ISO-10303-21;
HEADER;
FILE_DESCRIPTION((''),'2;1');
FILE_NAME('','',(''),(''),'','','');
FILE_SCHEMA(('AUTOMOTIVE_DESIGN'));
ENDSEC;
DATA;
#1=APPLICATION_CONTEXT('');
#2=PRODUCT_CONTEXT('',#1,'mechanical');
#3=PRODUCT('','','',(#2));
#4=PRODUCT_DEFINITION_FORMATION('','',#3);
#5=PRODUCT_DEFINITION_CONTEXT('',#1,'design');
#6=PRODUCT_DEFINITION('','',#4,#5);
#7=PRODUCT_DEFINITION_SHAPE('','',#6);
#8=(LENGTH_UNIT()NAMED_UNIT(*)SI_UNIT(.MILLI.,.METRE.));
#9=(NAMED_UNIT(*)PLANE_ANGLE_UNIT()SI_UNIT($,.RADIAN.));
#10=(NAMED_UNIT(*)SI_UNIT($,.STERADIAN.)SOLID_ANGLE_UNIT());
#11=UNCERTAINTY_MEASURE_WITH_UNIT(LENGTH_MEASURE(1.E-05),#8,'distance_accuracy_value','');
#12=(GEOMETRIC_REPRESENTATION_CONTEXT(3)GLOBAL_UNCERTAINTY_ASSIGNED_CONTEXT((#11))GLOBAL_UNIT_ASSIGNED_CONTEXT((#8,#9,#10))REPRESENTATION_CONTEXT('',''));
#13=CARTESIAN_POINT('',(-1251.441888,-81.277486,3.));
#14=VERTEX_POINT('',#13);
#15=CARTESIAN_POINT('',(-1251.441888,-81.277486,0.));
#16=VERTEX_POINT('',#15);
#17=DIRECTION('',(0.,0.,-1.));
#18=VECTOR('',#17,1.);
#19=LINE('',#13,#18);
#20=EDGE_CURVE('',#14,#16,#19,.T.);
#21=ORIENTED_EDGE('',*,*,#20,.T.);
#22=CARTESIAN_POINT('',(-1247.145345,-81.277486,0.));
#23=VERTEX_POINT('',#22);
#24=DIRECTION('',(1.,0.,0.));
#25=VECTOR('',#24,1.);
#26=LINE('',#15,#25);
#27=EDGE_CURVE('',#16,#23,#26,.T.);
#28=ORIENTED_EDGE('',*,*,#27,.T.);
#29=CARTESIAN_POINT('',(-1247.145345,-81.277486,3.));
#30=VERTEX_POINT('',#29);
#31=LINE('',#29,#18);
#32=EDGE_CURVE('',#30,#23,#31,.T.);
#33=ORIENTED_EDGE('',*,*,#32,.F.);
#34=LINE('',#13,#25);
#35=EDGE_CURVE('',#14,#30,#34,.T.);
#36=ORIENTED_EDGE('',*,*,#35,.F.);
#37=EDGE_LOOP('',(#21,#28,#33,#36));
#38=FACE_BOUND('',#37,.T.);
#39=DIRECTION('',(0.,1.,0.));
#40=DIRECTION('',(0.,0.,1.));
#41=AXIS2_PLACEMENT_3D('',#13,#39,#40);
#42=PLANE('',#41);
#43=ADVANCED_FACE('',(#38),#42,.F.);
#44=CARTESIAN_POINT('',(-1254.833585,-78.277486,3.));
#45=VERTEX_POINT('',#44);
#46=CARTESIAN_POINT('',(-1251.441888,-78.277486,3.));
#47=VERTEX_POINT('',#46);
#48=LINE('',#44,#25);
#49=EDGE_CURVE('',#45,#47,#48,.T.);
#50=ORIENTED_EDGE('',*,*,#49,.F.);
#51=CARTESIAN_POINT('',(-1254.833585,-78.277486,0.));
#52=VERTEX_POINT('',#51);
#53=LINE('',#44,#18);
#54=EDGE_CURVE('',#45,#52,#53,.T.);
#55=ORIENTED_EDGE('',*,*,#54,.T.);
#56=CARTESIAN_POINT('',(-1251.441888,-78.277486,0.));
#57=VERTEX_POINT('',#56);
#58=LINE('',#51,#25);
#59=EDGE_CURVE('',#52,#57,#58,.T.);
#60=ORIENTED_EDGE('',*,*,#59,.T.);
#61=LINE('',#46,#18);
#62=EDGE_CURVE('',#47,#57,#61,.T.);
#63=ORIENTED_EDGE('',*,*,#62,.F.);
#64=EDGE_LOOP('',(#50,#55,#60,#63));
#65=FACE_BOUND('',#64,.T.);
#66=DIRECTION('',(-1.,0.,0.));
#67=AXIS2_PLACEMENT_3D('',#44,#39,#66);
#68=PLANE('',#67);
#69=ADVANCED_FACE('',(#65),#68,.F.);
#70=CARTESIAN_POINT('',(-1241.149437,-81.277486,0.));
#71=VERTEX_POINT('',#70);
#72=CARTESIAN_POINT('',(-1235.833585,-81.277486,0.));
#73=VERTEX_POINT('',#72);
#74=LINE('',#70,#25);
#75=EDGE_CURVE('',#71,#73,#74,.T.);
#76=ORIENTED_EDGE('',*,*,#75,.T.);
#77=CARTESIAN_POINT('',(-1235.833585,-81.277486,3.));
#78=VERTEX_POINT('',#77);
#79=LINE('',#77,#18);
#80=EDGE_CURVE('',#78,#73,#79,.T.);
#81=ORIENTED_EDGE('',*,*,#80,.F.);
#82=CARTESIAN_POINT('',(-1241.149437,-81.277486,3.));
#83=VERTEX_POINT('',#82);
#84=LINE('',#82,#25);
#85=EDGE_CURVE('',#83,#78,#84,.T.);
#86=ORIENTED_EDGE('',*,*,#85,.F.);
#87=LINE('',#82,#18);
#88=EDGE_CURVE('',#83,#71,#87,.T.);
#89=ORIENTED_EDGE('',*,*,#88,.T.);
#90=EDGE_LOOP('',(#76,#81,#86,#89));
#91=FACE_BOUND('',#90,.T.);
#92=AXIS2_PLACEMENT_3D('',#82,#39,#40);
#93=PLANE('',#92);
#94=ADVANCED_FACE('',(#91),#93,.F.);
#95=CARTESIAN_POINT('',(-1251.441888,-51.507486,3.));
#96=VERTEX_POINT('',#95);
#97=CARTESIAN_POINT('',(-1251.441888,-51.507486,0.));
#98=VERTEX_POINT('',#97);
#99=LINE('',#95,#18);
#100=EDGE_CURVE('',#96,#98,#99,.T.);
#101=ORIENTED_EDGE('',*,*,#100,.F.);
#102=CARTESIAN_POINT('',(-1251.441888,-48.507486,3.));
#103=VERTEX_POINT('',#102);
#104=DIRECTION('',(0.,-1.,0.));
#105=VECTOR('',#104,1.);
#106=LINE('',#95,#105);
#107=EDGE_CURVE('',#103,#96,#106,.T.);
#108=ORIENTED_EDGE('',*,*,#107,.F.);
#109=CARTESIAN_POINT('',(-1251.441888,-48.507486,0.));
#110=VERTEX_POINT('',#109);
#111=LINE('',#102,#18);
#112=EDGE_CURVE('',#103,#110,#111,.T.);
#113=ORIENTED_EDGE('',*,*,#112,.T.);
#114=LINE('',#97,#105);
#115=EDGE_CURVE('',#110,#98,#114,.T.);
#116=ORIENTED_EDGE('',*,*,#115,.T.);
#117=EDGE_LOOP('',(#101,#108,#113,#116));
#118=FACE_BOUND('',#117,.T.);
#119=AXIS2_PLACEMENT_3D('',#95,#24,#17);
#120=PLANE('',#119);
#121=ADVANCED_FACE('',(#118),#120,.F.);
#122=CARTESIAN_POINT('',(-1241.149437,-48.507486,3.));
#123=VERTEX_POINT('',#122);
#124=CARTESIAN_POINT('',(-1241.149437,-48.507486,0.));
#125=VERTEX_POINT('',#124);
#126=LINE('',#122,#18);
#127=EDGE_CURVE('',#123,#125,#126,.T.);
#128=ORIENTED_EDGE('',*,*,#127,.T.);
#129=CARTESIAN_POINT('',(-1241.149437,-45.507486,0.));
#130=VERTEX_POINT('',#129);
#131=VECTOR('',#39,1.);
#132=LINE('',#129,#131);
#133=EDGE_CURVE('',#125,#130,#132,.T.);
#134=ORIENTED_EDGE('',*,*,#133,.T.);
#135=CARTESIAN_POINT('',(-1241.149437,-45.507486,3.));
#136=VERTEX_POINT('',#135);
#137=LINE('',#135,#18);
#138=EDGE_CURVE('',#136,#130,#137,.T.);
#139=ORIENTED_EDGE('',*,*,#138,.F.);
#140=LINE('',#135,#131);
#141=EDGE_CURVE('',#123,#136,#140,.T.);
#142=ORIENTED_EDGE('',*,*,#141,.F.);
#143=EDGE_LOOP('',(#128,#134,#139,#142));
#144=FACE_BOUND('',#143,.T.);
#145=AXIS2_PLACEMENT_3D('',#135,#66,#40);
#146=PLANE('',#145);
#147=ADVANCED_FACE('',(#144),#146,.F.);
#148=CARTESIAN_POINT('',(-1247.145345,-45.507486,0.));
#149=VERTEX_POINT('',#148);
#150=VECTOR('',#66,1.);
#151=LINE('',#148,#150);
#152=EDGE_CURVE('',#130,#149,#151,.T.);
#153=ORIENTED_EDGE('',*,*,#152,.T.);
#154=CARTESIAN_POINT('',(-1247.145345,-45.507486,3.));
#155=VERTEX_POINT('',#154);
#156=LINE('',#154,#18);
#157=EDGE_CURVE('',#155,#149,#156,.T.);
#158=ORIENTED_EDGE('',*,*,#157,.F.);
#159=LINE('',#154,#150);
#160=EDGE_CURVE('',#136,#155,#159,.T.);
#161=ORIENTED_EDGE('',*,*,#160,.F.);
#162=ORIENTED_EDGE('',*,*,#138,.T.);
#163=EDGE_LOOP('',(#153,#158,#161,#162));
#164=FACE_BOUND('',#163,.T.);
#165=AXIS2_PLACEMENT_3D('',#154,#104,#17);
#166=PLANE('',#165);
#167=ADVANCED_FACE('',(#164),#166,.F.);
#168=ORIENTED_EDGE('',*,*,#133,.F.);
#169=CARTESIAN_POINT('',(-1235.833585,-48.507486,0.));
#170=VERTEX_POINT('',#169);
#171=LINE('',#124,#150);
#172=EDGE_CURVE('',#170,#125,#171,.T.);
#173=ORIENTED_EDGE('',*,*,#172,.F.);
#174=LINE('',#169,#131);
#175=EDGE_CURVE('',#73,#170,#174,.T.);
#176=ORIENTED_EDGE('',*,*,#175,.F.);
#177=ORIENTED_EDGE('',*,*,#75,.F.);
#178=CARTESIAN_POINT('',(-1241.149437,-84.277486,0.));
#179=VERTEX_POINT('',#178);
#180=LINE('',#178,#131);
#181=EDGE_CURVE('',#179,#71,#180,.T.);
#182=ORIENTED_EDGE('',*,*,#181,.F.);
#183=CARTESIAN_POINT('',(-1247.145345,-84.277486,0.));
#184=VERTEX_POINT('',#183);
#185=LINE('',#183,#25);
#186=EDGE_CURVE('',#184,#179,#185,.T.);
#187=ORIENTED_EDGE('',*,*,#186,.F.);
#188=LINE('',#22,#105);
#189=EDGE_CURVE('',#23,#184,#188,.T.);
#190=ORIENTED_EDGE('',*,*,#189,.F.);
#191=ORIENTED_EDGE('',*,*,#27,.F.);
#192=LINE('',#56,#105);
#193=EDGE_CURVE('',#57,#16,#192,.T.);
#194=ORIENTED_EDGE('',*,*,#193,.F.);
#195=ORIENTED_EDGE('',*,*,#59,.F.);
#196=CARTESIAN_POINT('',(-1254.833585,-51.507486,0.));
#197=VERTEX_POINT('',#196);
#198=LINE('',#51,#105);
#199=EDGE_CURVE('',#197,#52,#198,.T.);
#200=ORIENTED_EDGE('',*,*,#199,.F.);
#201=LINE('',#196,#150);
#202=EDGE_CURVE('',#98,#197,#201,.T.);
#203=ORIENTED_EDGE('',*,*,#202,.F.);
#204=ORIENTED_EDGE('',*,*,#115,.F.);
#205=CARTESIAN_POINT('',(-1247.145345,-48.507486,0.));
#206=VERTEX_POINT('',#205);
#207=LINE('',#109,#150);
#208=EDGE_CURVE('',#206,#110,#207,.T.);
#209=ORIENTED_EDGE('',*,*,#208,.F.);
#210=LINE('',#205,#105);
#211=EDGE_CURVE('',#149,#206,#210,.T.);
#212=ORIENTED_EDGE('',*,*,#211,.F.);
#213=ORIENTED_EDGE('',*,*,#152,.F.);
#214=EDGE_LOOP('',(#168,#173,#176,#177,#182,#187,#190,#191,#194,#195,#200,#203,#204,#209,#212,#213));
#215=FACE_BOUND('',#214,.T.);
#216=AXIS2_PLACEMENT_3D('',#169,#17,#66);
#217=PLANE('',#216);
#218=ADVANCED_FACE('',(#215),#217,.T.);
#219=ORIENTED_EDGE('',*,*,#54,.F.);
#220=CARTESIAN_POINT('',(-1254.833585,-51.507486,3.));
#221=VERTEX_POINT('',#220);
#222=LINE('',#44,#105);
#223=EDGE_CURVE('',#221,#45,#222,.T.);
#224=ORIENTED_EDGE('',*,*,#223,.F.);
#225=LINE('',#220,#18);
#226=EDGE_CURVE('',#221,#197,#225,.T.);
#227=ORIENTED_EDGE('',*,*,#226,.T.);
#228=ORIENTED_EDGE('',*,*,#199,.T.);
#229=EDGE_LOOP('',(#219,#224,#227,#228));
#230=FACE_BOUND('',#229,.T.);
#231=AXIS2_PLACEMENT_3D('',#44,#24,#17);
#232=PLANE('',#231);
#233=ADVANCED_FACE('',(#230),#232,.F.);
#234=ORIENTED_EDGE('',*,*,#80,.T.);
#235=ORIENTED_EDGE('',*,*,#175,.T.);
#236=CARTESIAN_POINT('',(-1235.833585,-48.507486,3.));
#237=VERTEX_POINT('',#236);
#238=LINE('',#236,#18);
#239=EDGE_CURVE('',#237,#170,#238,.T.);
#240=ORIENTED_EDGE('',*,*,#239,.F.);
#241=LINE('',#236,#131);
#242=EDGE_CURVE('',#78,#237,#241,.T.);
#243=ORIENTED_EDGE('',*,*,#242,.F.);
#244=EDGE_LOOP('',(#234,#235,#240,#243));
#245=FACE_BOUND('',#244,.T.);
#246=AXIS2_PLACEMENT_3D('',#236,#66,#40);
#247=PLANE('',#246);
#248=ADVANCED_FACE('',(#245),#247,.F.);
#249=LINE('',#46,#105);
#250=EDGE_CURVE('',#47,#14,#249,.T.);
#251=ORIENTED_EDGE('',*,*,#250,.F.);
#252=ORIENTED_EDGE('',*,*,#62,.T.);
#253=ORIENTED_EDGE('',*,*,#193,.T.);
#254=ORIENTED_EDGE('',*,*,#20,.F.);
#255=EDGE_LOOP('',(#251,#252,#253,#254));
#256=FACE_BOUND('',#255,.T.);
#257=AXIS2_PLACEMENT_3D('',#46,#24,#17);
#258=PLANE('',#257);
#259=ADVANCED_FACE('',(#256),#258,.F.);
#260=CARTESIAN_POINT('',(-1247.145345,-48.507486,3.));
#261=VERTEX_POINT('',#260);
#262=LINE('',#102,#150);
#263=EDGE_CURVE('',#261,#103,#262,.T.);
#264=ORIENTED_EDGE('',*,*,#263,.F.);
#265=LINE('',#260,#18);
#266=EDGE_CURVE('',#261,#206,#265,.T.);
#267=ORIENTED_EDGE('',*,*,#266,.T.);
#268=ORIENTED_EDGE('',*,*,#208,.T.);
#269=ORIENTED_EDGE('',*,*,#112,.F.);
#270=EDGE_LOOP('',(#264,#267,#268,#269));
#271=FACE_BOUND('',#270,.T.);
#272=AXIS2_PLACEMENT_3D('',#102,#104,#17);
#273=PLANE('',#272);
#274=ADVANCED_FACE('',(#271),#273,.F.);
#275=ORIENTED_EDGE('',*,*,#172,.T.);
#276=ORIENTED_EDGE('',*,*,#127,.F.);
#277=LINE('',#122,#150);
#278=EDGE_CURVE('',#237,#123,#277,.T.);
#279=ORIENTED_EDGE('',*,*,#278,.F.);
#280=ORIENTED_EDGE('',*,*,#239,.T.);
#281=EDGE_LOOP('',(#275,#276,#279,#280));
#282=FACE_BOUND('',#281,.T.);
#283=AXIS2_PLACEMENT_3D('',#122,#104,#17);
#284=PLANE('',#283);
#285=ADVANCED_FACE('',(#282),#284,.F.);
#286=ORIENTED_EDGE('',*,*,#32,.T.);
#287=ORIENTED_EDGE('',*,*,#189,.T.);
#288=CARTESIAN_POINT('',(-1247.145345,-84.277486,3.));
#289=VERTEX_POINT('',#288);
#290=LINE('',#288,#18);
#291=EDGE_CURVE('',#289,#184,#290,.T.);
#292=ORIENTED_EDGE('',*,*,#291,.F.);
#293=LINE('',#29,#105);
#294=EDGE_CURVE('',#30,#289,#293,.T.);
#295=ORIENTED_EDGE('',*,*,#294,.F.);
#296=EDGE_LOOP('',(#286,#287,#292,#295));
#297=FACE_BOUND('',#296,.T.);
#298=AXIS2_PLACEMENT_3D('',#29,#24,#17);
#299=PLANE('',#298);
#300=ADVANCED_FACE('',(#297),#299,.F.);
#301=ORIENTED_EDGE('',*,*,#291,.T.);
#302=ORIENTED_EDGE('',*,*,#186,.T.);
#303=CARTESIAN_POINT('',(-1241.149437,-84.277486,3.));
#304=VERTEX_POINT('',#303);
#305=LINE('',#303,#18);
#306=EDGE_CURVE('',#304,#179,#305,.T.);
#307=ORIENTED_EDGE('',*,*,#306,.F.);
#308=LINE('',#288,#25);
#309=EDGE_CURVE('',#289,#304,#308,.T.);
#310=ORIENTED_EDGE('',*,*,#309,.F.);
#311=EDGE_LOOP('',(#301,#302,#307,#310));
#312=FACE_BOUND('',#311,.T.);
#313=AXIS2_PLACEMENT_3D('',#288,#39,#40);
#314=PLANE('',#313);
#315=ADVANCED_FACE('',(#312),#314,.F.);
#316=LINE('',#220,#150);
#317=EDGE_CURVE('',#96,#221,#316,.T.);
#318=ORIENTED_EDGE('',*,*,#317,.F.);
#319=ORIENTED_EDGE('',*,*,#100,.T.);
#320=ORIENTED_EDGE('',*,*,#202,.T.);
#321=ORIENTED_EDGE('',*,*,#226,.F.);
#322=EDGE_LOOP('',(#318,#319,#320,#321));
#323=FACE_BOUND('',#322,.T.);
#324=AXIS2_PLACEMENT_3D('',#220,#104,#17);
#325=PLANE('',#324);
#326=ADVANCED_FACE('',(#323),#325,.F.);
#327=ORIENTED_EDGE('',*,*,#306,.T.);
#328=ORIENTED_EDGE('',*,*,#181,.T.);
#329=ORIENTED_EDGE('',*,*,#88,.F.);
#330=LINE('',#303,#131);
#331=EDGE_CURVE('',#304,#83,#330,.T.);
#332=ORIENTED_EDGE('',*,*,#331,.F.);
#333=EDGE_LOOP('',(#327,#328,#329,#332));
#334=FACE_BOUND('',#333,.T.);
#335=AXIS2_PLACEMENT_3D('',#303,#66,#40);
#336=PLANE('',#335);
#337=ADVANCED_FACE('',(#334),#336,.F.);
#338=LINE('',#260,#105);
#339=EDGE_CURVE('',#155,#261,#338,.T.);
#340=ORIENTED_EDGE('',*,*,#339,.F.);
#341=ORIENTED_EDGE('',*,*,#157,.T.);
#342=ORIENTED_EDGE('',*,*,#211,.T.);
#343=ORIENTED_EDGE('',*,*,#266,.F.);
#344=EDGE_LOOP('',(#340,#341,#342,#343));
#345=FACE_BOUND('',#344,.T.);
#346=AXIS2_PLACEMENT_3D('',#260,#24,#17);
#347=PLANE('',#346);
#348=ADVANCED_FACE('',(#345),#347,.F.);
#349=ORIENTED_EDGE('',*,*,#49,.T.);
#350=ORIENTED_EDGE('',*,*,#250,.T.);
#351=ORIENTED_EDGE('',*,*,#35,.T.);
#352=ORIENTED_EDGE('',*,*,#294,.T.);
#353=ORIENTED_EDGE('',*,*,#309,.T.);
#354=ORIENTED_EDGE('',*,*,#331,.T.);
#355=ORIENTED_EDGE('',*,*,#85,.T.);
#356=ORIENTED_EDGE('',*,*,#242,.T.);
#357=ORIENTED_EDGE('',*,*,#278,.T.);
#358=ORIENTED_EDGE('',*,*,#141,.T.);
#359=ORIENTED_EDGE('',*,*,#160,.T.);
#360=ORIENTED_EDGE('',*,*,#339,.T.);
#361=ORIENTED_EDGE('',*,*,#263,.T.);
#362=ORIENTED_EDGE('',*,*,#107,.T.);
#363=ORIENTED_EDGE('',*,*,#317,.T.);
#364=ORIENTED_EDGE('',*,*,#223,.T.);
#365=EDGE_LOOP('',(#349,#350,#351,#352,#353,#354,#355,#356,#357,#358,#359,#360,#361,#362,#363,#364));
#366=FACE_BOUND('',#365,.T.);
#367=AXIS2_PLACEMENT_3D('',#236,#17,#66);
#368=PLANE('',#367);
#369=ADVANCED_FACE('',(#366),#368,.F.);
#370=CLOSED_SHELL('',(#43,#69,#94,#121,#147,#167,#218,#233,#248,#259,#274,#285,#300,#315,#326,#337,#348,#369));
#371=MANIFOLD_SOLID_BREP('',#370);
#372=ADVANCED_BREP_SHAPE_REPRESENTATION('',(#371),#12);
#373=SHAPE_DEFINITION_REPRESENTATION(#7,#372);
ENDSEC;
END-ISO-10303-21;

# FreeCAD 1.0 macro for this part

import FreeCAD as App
import Part
import Sketcher

doc = App.newDocument("Part")
body = doc.addObject("PartDesign::Body", "Body")

sketch1 = body.newObject("Sketcher::SketchObject", "Sketch")
sketch1.AttachmentSupport = (doc.getObject("XY_Plane"), [""])
sketch1.MapMode = "FlatFace"
sketch1.addGeometry([
    Part.LineSegment(App.Vector(-1235.8, -81.3, 0), App.Vector(-1235.8, -48.5, 0)),
    Part.LineSegment(App.Vector(-1235.8, -48.5, 0), App.Vector(-1241.1, -48.5, 0)),
    Part.LineSegment(App.Vector(-1241.1, -48.5, 0), App.Vector(-1241.1, -45.5, 0)),
    Part.LineSegment(App.Vector(-1241.1, -45.5, 0), App.Vector(-1247.1, -45.5, 0)),
    Part.LineSegment(App.Vector(-1247.1, -45.5, 0), App.Vector(-1247.1, -48.5, 0)),
    Part.LineSegment(App.Vector(-1247.1, -48.5, 0), App.Vector(-1251.4, -48.5, 0)),
    Part.LineSegment(App.Vector(-1251.4, -48.5, 0), App.Vector(-1251.4, -51.5, 0)),
    Part.LineSegment(App.Vector(-1251.4, -51.5, 0), App.Vector(-1254.8, -51.5, 0)),
    Part.LineSegment(App.Vector(-1254.8, -51.5, 0), App.Vector(-1254.8, -78.3, 0)),
    Part.LineSegment(App.Vector(-1254.8, -78.3, 0), App.Vector(-1251.4, -78.3, 0)),
    Part.LineSegment(App.Vector(-1251.4, -78.3, 0), App.Vector(-1251.4, -81.3, 0)),
    Part.LineSegment(App.Vector(-1251.4, -81.3, 0), App.Vector(-1247.1, -81.3, 0)),
    Part.LineSegment(App.Vector(-1247.1, -81.3, 0), App.Vector(-1247.1, -84.3, 0)),
    Part.LineSegment(App.Vector(-1247.1, -84.3, 0), App.Vector(-1241.1, -84.3, 0)),
    Part.LineSegment(App.Vector(-1241.1, -84.3, 0), App.Vector(-1241.1, -81.3, 0)),
    Part.LineSegment(App.Vector(-1241.1, -81.3, 0), App.Vector(-1235.8, -81.3, 0)),
], False)
sketch1.addConstraint([
    Sketcher.Constraint("Coincident", 0, 2, 1, 1),
    Sketcher.Constraint("Coincident", 1, 2, 2, 1),
    Sketcher.Constraint("Coincident", 2, 2, 3, 1),
    Sketcher.Constraint("Coincident", 3, 2, 4, 1),
    Sketcher.Constraint("Coincident", 4, 2, 5, 1),
    Sketcher.Constraint("Coincident", 5, 2, 6, 1),
    Sketcher.Constraint("Coincident", 6, 2, 7, 1),
    Sketcher.Constraint("Coincident", 7, 2, 8, 1),
    Sketcher.Constraint("Coincident", 8, 2, 9, 1),
    Sketcher.Constraint("Coincident", 9, 2, 10, 1),
    Sketcher.Constraint("Coincident", 10, 2, 11, 1),
    Sketcher.Constraint("Coincident", 11, 2, 12, 1),
    Sketcher.Constraint("Coincident", 12, 2, 13, 1),
    Sketcher.Constraint("Coincident", 13, 2, 14, 1),
    Sketcher.Constraint("Coincident", 14, 2, 15, 1),
    Sketcher.Constraint("Coincident", 15, 2, 0, 1),
    Sketcher.Constraint("Vertical", 0),
    Sketcher.Constraint("Horizontal", 1),
    Sketcher.Constraint("Vertical", 2),
    Sketcher.Constraint("Horizontal", 3),
    Sketcher.Constraint("Vertical", 4),
    Sketcher.Constraint("Horizontal", 5),
    Sketcher.Constraint("Vertical", 6),
    Sketcher.Constraint("Horizontal", 7),
    Sketcher.Constraint("Vertical", 8),
    Sketcher.Constraint("Horizontal", 9),
    Sketcher.Constraint("Vertical", 10),
    Sketcher.Constraint("Horizontal", 11),
    Sketcher.Constraint("Vertical", 12),
    Sketcher.Constraint("Horizontal", 13),
    Sketcher.Constraint("Vertical", 14),
    Sketcher.Constraint("Horizontal", 15),
    Sketcher.Constraint("Horizontal", 1, 2, 4, 2),
    Sketcher.Constraint("Horizontal", 11, 2, 14, 2),
    Sketcher.Constraint("Vertical", 6, 2, 9, 2),
    Sketcher.Constraint("Vertical", 4, 2, 11, 2),
    Sketcher.Constraint("Vertical", 2, 2, 13, 2),
    Sketcher.Constraint("Equal", 4, 6),
    Sketcher.Constraint("Equal", 6, 10),
    Sketcher.Constraint("Equal", 10, 12),
    Sketcher.Constraint("DistanceY", 2, 1, 2, 2, 3.0),
    Sketcher.Constraint("DistanceY", 0, 1, 0, 2, 32.77),
    Sketcher.Constraint("DistanceX", 1, 2, 1, 1, 5.315852),
    Sketcher.Constraint("DistanceX", 3, 2, 3, 1, 5.995908),
    Sketcher.Constraint("DistanceX", 5, 2, 5, 1, 4.296544),
    Sketcher.Constraint("DistanceX", 7, 2, 7, 1, 3.391697),
    Sketcher.Constraint("DistanceX", 5, 2, -1, 1, 1251.441888),
    Sketcher.Constraint("DistanceY", 0, 2, -1, 1, 48.507486),
])
pad1 = body.newObject("PartDesign::Pad", "Pad")
pad1.Profile = sketch1
pad1.Length = 3

doc.recompute()
